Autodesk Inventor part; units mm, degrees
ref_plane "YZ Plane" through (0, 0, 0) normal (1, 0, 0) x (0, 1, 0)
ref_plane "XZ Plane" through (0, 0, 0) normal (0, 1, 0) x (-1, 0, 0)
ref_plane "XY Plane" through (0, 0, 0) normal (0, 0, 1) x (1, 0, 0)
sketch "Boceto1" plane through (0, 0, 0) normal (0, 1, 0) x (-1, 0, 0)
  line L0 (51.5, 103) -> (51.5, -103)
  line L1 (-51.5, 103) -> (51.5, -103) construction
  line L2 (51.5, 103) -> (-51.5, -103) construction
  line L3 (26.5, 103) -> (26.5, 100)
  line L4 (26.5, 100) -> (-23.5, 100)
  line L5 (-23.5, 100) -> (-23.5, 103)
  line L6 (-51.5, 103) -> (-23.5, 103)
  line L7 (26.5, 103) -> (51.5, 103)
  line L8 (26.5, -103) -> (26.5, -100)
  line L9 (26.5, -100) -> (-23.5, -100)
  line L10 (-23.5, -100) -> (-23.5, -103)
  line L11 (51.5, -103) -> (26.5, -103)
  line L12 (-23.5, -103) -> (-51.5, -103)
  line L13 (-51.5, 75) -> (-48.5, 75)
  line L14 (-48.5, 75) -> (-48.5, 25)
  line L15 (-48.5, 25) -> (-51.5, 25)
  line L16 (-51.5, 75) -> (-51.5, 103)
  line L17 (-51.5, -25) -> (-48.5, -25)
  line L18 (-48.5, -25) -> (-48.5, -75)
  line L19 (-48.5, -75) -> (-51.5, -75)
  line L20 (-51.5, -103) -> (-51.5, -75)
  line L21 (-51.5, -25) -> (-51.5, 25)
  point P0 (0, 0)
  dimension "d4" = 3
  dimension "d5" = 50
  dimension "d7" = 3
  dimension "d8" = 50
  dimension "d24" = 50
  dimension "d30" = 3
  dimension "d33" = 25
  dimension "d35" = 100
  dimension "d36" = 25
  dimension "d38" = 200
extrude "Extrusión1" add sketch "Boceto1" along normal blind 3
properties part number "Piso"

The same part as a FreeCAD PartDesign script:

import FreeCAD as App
import Part
import Sketcher

V = App.Vector
Q = App.Units.Quantity


def add_polygon(sketch, points):
    """Adds a closed chain of lines whose ends are joined by coincident constraints."""
    first, n = sketch.GeometryCount, len(points)
    for a, b in zip(points, points[1:] + points[:1]):
        sketch.addGeometry(Part.LineSegment(App.Vector(*a, 0), App.Vector(*b, 0)), False)
    for i in range(n):
        sketch.addConstraint(Sketcher.Constraint("Coincident", first + i, 2, first + (i + 1) % n, 1))

doc = App.newDocument("Part")
body = doc.addObject("PartDesign::Body", "Body")

# Sketch on XZ plane
sketch1 = doc.addObject("Sketcher::SketchObject", "Sketch")
body.addObject(sketch1)
sketch1.AttachmentSupport = (doc.XZ_Plane, [""])
sketch1.MapMode = "FlatFace"
add_polygon(sketch1, [(-51.5, -103), (-51.5, 103), (-26.5, 103), (-26.5, 100), (23.5, 100), (23.5, 103), (51.5, 103), (51.5, 75), (48.5, 75), (48.5, 25), (51.5, 25), (51.5, -25), (48.5, -25), (48.5, -75), (51.5, -75), (51.5, -103), (23.5, -103), (23.5, -100), (-26.5, -100), (-26.5, -103)])  # lines 0-19
sketch1.addConstraint([
    Sketcher.Constraint("Vertical", 0),
    Sketcher.Constraint("Horizontal", 1),
    Sketcher.Constraint("Vertical", 2),
    Sketcher.Constraint("Horizontal", 3),
    Sketcher.Constraint("Vertical", 4),
    Sketcher.Constraint("Horizontal", 5),
    Sketcher.Constraint("Vertical", 6),
    Sketcher.Constraint("Horizontal", 7),
    Sketcher.Constraint("Vertical", 8),
    Sketcher.Constraint("Horizontal", 9),
    Sketcher.Constraint("Vertical", 10),
    Sketcher.Constraint("Horizontal", 11),
    Sketcher.Constraint("Vertical", 12),
    Sketcher.Constraint("Horizontal", 13),
    Sketcher.Constraint("Vertical", 14),
    Sketcher.Constraint("Horizontal", 15),
    Sketcher.Constraint("Vertical", 16),
    Sketcher.Constraint("Horizontal", 17),
    Sketcher.Constraint("Vertical", 18),
    Sketcher.Constraint("Horizontal", 19),
    Sketcher.Constraint("Symmetric", 0, 2, 14, 2, -1, 1),
    Sketcher.Constraint("Symmetric", 5, 2, 19, 2, -1, 1),
    Sketcher.Constraint("Symmetric", 8, 2, 11, 2, -1),
    Sketcher.Constraint("Symmetric", 4, 2, 15, 2, -1),
    Sketcher.Constraint("Symmetric", 2, 2, 17, 2, -1),
    Sketcher.Constraint("Vertical", 6, 2, 9, 2),
    Sketcher.Constraint("Equal", 13, 2),
    Sketcher.Constraint("Equal", 15, 6),
    Sketcher.Constraint("Equal", 17, 8),
    Sketcher.Constraint("Equal", 8, 10),
    Sketcher.Constraint("Equal", 10, 12),
    Sketcher.Constraint("DistanceX", 1, 1, 1, 2, Q("25 mm")),
    Sketcher.Constraint("DistanceX", 3, 1, 3, 2, Q("50 mm")),
    Sketcher.Constraint("DistanceX", 7, 2, 7, 1, Q("3 mm")),
    Sketcher.Constraint("DistanceY", -1, 1, 2, 2, Q("100 mm")),
])
pad1 = doc.addObject("PartDesign::Pad", "Pad")
body.addObject(pad1)
pad1.Profile = sketch1
pad1.Length = 3
pad1.Reversed = True

doc.recompute()
